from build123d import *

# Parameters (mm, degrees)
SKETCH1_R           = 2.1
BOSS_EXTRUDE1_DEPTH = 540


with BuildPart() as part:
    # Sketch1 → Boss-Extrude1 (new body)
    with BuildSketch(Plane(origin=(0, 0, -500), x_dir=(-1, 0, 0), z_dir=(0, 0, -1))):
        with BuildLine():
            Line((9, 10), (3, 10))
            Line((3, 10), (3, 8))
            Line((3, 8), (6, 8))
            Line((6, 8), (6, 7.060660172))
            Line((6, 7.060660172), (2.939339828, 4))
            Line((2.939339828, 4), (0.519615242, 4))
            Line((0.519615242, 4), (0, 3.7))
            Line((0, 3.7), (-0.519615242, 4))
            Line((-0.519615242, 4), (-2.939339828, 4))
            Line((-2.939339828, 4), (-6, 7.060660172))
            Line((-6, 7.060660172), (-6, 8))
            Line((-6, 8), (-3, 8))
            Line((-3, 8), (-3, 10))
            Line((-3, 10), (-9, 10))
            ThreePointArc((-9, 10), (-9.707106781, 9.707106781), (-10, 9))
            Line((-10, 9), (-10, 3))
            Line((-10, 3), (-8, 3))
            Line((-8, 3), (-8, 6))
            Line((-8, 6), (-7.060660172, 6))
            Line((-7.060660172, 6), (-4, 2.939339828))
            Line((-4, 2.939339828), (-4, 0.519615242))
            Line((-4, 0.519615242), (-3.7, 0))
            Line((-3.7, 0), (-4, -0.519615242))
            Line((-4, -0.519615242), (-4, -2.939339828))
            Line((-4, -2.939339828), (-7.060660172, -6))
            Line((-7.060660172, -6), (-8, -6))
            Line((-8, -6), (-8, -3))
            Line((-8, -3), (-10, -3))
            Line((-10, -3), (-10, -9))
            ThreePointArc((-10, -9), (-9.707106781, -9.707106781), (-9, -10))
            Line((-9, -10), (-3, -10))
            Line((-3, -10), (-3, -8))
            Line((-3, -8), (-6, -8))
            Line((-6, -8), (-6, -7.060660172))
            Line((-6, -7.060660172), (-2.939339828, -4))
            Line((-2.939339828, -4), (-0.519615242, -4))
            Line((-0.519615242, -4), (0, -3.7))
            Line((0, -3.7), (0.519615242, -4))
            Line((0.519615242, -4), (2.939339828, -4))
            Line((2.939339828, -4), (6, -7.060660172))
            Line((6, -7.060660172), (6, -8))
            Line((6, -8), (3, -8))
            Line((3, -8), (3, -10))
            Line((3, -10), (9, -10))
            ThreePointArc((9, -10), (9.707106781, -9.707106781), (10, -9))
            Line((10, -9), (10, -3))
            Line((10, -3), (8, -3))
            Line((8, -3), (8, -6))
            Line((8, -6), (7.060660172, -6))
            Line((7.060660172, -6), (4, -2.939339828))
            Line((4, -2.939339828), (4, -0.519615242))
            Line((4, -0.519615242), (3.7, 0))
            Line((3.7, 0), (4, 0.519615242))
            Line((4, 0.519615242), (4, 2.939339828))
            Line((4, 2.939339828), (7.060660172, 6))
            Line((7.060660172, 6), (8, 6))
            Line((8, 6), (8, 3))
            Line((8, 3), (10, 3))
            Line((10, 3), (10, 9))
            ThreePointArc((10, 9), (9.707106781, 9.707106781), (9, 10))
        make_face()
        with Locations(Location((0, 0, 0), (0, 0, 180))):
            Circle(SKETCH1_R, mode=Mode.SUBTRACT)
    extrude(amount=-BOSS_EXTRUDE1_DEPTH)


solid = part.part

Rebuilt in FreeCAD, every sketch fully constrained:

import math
import FreeCAD as App
import Part
import Sketcher
from FreeCAD import Vector
Q = App.Units.Quantity

doc = App.newDocument("Part")
body = doc.addObject("PartDesign::Body", "Body")

# Sketch on XY plane
sketch1 = body.newObject("Sketcher::SketchObject", "Sketch")
sketch1.AttachmentSupport = (doc.getObject("XY_Plane"), [""])
sketch1.MapMode = "FlatFace"
sketch1.AttachmentOffset = App.Placement(Vector(0, 0, -500), App.Rotation())
sketch1.addGeometry([
    Part.LineSegment(Vector(-9, 10, 0), Vector(-3, 10, 0)),  # 0
    Part.LineSegment(Vector(-3, 10, 0), Vector(-3, 8, 0)),  # 1
    Part.LineSegment(Vector(-3, 8, 0), Vector(-6, 8, 0)),  # 2
    Part.LineSegment(Vector(-6, 8, 0), Vector(-6, 7.06066, 0)),  # 3
    Part.LineSegment(Vector(-6, 7.06066, 0), Vector(-2.93934, 4, 0)),  # 4
    Part.LineSegment(Vector(-2.93934, 4, 0), Vector(-0.519615, 4, 0)),  # 5
    Part.LineSegment(Vector(-0.519615, 4, 0), Vector(0, 3.7, 0)),  # 6
    Part.LineSegment(Vector(0, 3.7, 0), Vector(0.519615, 4, 0)),  # 7
    Part.LineSegment(Vector(0.519615, 4, 0), Vector(2.93934, 4, 0)),  # 8
    Part.LineSegment(Vector(2.93934, 4, 0), Vector(6, 7.06066, 0)),  # 9
    Part.LineSegment(Vector(6, 7.06066, 0), Vector(6, 8, 0)),  # 10
    Part.LineSegment(Vector(6, 8, 0), Vector(3, 8, 0)),  # 11
    Part.LineSegment(Vector(3, 8, 0), Vector(3, 10, 0)),  # 12
    Part.LineSegment(Vector(3, 10, 0), Vector(9, 10, 0)),  # 13
    Part.ArcOfCircle(Part.Circle(Vector(9, 9, 0), Vector(0, 0, 1), 1), math.radians(0), math.radians(90)),  # 14
    Part.LineSegment(Vector(10, 9, 0), Vector(10, 3, 0)),  # 15
    Part.LineSegment(Vector(10, 3, 0), Vector(8, 3, 0)),  # 16
    Part.LineSegment(Vector(8, 3, 0), Vector(8, 6, 0)),  # 17
    Part.LineSegment(Vector(8, 6, 0), Vector(7.06066, 6, 0)),  # 18
    Part.LineSegment(Vector(7.06066, 6, 0), Vector(4, 2.93934, 0)),  # 19
    Part.LineSegment(Vector(4, 2.93934, 0), Vector(4, 0.519615, 0)),  # 20
    Part.LineSegment(Vector(4, 0.519615, 0), Vector(3.7, 0, 0)),  # 21
    Part.LineSegment(Vector(3.7, 0, 0), Vector(4, -0.519615, 0)),  # 22
    Part.LineSegment(Vector(4, -0.519615, 0), Vector(4, -2.93934, 0)),  # 23
    Part.LineSegment(Vector(4, -2.93934, 0), Vector(7.06066, -6, 0)),  # 24
    Part.LineSegment(Vector(7.06066, -6, 0), Vector(8, -6, 0)),  # 25
    Part.LineSegment(Vector(8, -6, 0), Vector(8, -3, 0)),  # 26
    Part.LineSegment(Vector(8, -3, 0), Vector(10, -3, 0)),  # 27
    Part.LineSegment(Vector(10, -3, 0), Vector(10, -9, 0)),  # 28
    Part.ArcOfCircle(Part.Circle(Vector(9, -9, 0), Vector(0, 0, 1), 1), math.radians(-90), math.radians(0)),  # 29
    Part.LineSegment(Vector(9, -10, 0), Vector(3, -10, 0)),  # 30
    Part.LineSegment(Vector(3, -10, 0), Vector(3, -8, 0)),  # 31
    Part.LineSegment(Vector(3, -8, 0), Vector(6, -8, 0)),  # 32
    Part.LineSegment(Vector(6, -8, 0), Vector(6, -7.06066, 0)),  # 33
    Part.LineSegment(Vector(6, -7.06066, 0), Vector(2.93934, -4, 0)),  # 34
    Part.LineSegment(Vector(2.93934, -4, 0), Vector(0.519615, -4, 0)),  # 35
    Part.LineSegment(Vector(0.519615, -4, 0), Vector(0, -3.7, 0)),  # 36
    Part.LineSegment(Vector(0, -3.7, 0), Vector(-0.519615, -4, 0)),  # 37
    Part.LineSegment(Vector(-0.519615, -4, 0), Vector(-2.93934, -4, 0)),  # 38
    Part.LineSegment(Vector(-2.93934, -4, 0), Vector(-6, -7.06066, 0)),  # 39
    Part.LineSegment(Vector(-6, -7.06066, 0), Vector(-6, -8, 0)),  # 40
    Part.LineSegment(Vector(-6, -8, 0), Vector(-3, -8, 0)),  # 41
    Part.LineSegment(Vector(-3, -8, 0), Vector(-3, -10, 0)),  # 42
    Part.LineSegment(Vector(-3, -10, 0), Vector(-9, -10, 0)),  # 43
    Part.ArcOfCircle(Part.Circle(Vector(-9, -9, 0), Vector(0, 0, 1), 1), math.radians(-180), math.radians(-90)),  # 44
    Part.LineSegment(Vector(-10, -9, 0), Vector(-10, -3, 0)),  # 45
    Part.LineSegment(Vector(-10, -3, 0), Vector(-8, -3, 0)),  # 46
    Part.LineSegment(Vector(-8, -3, 0), Vector(-8, -6, 0)),  # 47
    Part.LineSegment(Vector(-8, -6, 0), Vector(-7.06066, -6, 0)),  # 48
    Part.LineSegment(Vector(-7.06066, -6, 0), Vector(-4, -2.93934, 0)),  # 49
    Part.LineSegment(Vector(-4, -2.93934, 0), Vector(-4, -0.519615, 0)),  # 50
    Part.LineSegment(Vector(-4, -0.519615, 0), Vector(-3.7, 0, 0)),  # 51
    Part.LineSegment(Vector(-3.7, 0, 0), Vector(-4, 0.519615, 0)),  # 52
    Part.LineSegment(Vector(-4, 0.519615, 0), Vector(-4, 2.93934, 0)),  # 53
    Part.LineSegment(Vector(-4, 2.93934, 0), Vector(-7.06066, 6, 0)),  # 54
    Part.LineSegment(Vector(-7.06066, 6, 0), Vector(-8, 6, 0)),  # 55
    Part.LineSegment(Vector(-8, 6, 0), Vector(-8, 3, 0)),  # 56
    Part.LineSegment(Vector(-8, 3, 0), Vector(-10, 3, 0)),  # 57
    Part.LineSegment(Vector(-10, 3, 0), Vector(-10, 9, 0)),  # 58
    Part.ArcOfCircle(Part.Circle(Vector(-9, 9, 0), Vector(0, 0, 1), 1), math.radians(90), math.radians(180)),  # 59
    Part.Circle(Vector(0, 0, 0), Vector(0, 0, 1), 2.1),  # 60
], False)
sketch1.addConstraint([
    Sketcher.Constraint("Coincident", 0, 2, 1, 1),
    Sketcher.Constraint("Coincident", 1, 2, 2, 1),
    Sketcher.Constraint("Coincident", 2, 2, 3, 1),
    Sketcher.Constraint("Coincident", 3, 2, 4, 1),
    Sketcher.Constraint("Coincident", 4, 2, 5, 1),
    Sketcher.Constraint("Coincident", 5, 2, 6, 1),
    Sketcher.Constraint("Coincident", 6, 2, 7, 1),
    Sketcher.Constraint("Coincident", 7, 2, 8, 1),
    Sketcher.Constraint("Coincident", 8, 2, 9, 1),
    Sketcher.Constraint("Coincident", 9, 2, 10, 1),
    Sketcher.Constraint("Coincident", 10, 2, 11, 1),
    Sketcher.Constraint("Coincident", 11, 2, 12, 1),
    Sketcher.Constraint("Coincident", 12, 2, 13, 1),
    Sketcher.Constraint("Tangent", 13, 2, 14, 2),
    Sketcher.Constraint("Tangent", 14, 1, 15, 1),
    Sketcher.Constraint("Coincident", 15, 2, 16, 1),
    Sketcher.Constraint("Coincident", 16, 2, 17, 1),
    Sketcher.Constraint("Coincident", 17, 2, 18, 1),
    Sketcher.Constraint("Coincident", 18, 2, 19, 1),
    Sketcher.Constraint("Coincident", 19, 2, 20, 1),
    Sketcher.Constraint("Coincident", 20, 2, 21, 1),
    Sketcher.Constraint("Coincident", 21, 2, 22, 1),
    Sketcher.Constraint("Coincident", 22, 2, 23, 1),
    Sketcher.Constraint("Coincident", 23, 2, 24, 1),
    Sketcher.Constraint("Coincident", 24, 2, 25, 1),
    Sketcher.Constraint("Coincident", 25, 2, 26, 1),
    Sketcher.Constraint("Coincident", 26, 2, 27, 1),
    Sketcher.Constraint("Coincident", 27, 2, 28, 1),
    Sketcher.Constraint("Tangent", 28, 2, 29, 2),
    Sketcher.Constraint("Tangent", 29, 1, 30, 1),
    Sketcher.Constraint("Coincident", 30, 2, 31, 1),
    Sketcher.Constraint("Coincident", 31, 2, 32, 1),
    Sketcher.Constraint("Coincident", 32, 2, 33, 1),
    Sketcher.Constraint("Coincident", 33, 2, 34, 1),
    Sketcher.Constraint("Coincident", 34, 2, 35, 1),
    Sketcher.Constraint("Coincident", 35, 2, 36, 1),
    Sketcher.Constraint("Coincident", 36, 2, 37, 1),
    Sketcher.Constraint("Coincident", 37, 2, 38, 1),
    Sketcher.Constraint("Coincident", 38, 2, 39, 1),
    Sketcher.Constraint("Coincident", 39, 2, 40, 1),
    Sketcher.Constraint("Coincident", 40, 2, 41, 1),
    Sketcher.Constraint("Coincident", 41, 2, 42, 1),
    Sketcher.Constraint("Coincident", 42, 2, 43, 1),
    Sketcher.Constraint("Tangent", 43, 2, 44, 2),
    Sketcher.Constraint("Tangent", 44, 1, 45, 1),
    Sketcher.Constraint("Coincident", 45, 2, 46, 1),
    Sketcher.Constraint("Coincident", 46, 2, 47, 1),
    Sketcher.Constraint("Coincident", 47, 2, 48, 1),
    Sketcher.Constraint("Coincident", 48, 2, 49, 1),
    Sketcher.Constraint("Coincident", 49, 2, 50, 1),
    Sketcher.Constraint("Coincident", 50, 2, 51, 1),
    Sketcher.Constraint("Coincident", 51, 2, 52, 1),
    Sketcher.Constraint("Coincident", 52, 2, 53, 1),
    Sketcher.Constraint("Coincident", 53, 2, 54, 1),
    Sketcher.Constraint("Coincident", 54, 2, 55, 1),
    Sketcher.Constraint("Coincident", 55, 2, 56, 1),
    Sketcher.Constraint("Coincident", 56, 2, 57, 1),
    Sketcher.Constraint("Coincident", 57, 2, 58, 1),
    Sketcher.Constraint("Tangent", 58, 2, 59, 2),
    Sketcher.Constraint("Tangent", 59, 1, 0, 1),
    Sketcher.Constraint("Horizontal", 0),
    Sketcher.Constraint("Vertical", 1),
    Sketcher.Constraint("Horizontal", 2),
    Sketcher.Constraint("Vertical", 3),
    Sketcher.Constraint("Horizontal", 5),
    Sketcher.Constraint("Horizontal", 8),
    Sketcher.Constraint("Vertical", 10),
    Sketcher.Constraint("Horizontal", 11),
    Sketcher.Constraint("Vertical", 12),
    Sketcher.Constraint("Horizontal", 13),
    Sketcher.Constraint("Vertical", 15),
    Sketcher.Constraint("Horizontal", 16),
    Sketcher.Constraint("Vertical", 17),
    Sketcher.Constraint("Horizontal", 18),
    Sketcher.Constraint("Vertical", 20),
    Sketcher.Constraint("Vertical", 23),
    Sketcher.Constraint("Horizontal", 25),
    Sketcher.Constraint("Vertical", 26),
    Sketcher.Constraint("Horizontal", 27),
    Sketcher.Constraint("Vertical", 28),
    Sketcher.Constraint("Horizontal", 30),
    Sketcher.Constraint("Vertical", 31),
    Sketcher.Constraint("Horizontal", 32),
    Sketcher.Constraint("Vertical", 33),
    Sketcher.Constraint("Horizontal", 35),
    Sketcher.Constraint("Horizontal", 38),
    Sketcher.Constraint("Vertical", 40),
    Sketcher.Constraint("Horizontal", 41),
    Sketcher.Constraint("Vertical", 42),
    Sketcher.Constraint("Horizontal", 43),
    Sketcher.Constraint("Vertical", 45),
    Sketcher.Constraint("Horizontal", 46),
    Sketcher.Constraint("Vertical", 47),
    Sketcher.Constraint("Horizontal", 48),
    Sketcher.Constraint("Vertical", 50),
    Sketcher.Constraint("Vertical", 53),
    Sketcher.Constraint("Horizontal", 55),
    Sketcher.Constraint("Vertical", 56),
    Sketcher.Constraint("Horizontal", 57),
    Sketcher.Constraint("Vertical", 58),
    Sketcher.Constraint("Coincident", 60, 3, -1, 1),
    Sketcher.Constraint("Equal", 14, 29),
    Sketcher.Constraint("Equal", 29, 44),
    Sketcher.Constraint("Equal", 44, 59),
    Sketcher.Constraint("Symmetric", 14, 3, 44, 3, -1, 1),
    Sketcher.Constraint("Symmetric", 29, 3, 59, 3, -1, 1),
    Sketcher.Constraint("Symmetric", 1, 2, 31, 2, -1, 1),
    Sketcher.Constraint("Symmetric", 3, 2, 33, 2, -1, 1),
    Sketcher.Constraint("Symmetric", 4, 2, 34, 2, -1, 1),
    Sketcher.Constraint("Symmetric", 6, 2, 36, 2, -1, 1),
    Sketcher.Constraint("Symmetric", 7, 2, 37, 2, -1, 1),
    Sketcher.Constraint("Symmetric", 9, 2, 39, 2, -1, 1),
    Sketcher.Constraint("Symmetric", 11, 2, 41, 2, -1, 1),
    Sketcher.Constraint("Symmetric", 16, 2, 46, 2, -1, 1),
    Sketcher.Constraint("Symmetric", 18, 2, 48, 2, -1, 1),
    Sketcher.Constraint("Symmetric", 19, 2, 49, 2, -1, 1),
    Sketcher.Constraint("Symmetric", 21, 2, 51, 2, -1, 1),
    Sketcher.Constraint("Symmetric", 22, 2, 52, 2, -1, 1),
    Sketcher.Constraint("Symmetric", 24, 2, 54, 2, -1, 1),
    Sketcher.Constraint("Symmetric", 26, 2, 56, 2, -1, 1),
    Sketcher.Constraint("Symmetric", 29, 3, 44, 3, -2),
    Sketcher.Constraint("Symmetric", 5, 2, 7, 2, -2),
    Sketcher.Constraint("Symmetric", 3, 2, 9, 2, -2),
    Sketcher.Constraint("Symmetric", 1, 2, 11, 2, -2),
    Sketcher.Constraint("Symmetric", 26, 2, 46, 2, -2),
    Sketcher.Constraint("Symmetric", 24, 2, 48, 2, -2),
    Sketcher.Constraint("Symmetric", 23, 2, 49, 2, -2),
    Sketcher.Constraint("PointOnObject", 6, 2, -2),
    Sketcher.Constraint("PointOnObject", 21, 2, -1),
    Sketcher.Constraint("Perpendicular", 4, 9),
    Sketcher.Constraint("Parallel", 9, 19),
    Sketcher.Constraint("Perpendicular", 6, 21),
    Sketcher.Constraint("Perpendicular", 7, 22),
    Sketcher.Constraint("Perpendicular", 19, 24),
    Sketcher.Constraint("Perpendicular", 21, 36),
    Sketcher.Constraint("Perpendicular", 34, 39),
    Sketcher.Constraint("Perpendicular", 36, 51),
    Sketcher.Constraint("Perpendicular", 49, 54),
    Sketcher.Constraint("Equal", 57, 1),
    Sketcher.Constraint("Equal", 55, 3),
    Sketcher.Constraint("Equal", 43, 15),
    Sketcher.Constraint("Equal", 41, 17),
    Sketcher.Constraint("Equal", 38, 20),
    Sketcher.Constraint("Equal", 9, 19),
    Sketcher.Constraint("Equal", 7, 21),
    Sketcher.Constraint("Radius", 14, Q("1 mm")),
    Sketcher.Constraint("Diameter", 60, Q("4.2 mm")),
    Sketcher.Constraint("DistanceX", 0, 1, 0, 2, Q("6 mm")),
    Sketcher.Constraint("DistanceX", 2, 2, 2, 1, Q("3 mm")),
    Sketcher.Constraint("DistanceX", 16, 2, 16, 1, Q("2 mm")),
    Sketcher.Constraint("Angle", 6, Q("-30 deg")),
    Sketcher.Constraint("DistanceX", -1, 1, 14, 3, Q("9 mm")),
    Sketcher.Constraint("DistanceY", -1, 1, 4, 2, Q("4 mm")),
    Sketcher.Constraint("Distance", 6, Q("0.6 mm")),
    Sketcher.Constraint("DistanceX", 18, 2, 18, 1, Q("0.93934 mm")),
])
pad1 = body.newObject("PartDesign::Pad", "Pad")
pad1.Profile = sketch1
pad1.Length = 540

doc.recompute()
